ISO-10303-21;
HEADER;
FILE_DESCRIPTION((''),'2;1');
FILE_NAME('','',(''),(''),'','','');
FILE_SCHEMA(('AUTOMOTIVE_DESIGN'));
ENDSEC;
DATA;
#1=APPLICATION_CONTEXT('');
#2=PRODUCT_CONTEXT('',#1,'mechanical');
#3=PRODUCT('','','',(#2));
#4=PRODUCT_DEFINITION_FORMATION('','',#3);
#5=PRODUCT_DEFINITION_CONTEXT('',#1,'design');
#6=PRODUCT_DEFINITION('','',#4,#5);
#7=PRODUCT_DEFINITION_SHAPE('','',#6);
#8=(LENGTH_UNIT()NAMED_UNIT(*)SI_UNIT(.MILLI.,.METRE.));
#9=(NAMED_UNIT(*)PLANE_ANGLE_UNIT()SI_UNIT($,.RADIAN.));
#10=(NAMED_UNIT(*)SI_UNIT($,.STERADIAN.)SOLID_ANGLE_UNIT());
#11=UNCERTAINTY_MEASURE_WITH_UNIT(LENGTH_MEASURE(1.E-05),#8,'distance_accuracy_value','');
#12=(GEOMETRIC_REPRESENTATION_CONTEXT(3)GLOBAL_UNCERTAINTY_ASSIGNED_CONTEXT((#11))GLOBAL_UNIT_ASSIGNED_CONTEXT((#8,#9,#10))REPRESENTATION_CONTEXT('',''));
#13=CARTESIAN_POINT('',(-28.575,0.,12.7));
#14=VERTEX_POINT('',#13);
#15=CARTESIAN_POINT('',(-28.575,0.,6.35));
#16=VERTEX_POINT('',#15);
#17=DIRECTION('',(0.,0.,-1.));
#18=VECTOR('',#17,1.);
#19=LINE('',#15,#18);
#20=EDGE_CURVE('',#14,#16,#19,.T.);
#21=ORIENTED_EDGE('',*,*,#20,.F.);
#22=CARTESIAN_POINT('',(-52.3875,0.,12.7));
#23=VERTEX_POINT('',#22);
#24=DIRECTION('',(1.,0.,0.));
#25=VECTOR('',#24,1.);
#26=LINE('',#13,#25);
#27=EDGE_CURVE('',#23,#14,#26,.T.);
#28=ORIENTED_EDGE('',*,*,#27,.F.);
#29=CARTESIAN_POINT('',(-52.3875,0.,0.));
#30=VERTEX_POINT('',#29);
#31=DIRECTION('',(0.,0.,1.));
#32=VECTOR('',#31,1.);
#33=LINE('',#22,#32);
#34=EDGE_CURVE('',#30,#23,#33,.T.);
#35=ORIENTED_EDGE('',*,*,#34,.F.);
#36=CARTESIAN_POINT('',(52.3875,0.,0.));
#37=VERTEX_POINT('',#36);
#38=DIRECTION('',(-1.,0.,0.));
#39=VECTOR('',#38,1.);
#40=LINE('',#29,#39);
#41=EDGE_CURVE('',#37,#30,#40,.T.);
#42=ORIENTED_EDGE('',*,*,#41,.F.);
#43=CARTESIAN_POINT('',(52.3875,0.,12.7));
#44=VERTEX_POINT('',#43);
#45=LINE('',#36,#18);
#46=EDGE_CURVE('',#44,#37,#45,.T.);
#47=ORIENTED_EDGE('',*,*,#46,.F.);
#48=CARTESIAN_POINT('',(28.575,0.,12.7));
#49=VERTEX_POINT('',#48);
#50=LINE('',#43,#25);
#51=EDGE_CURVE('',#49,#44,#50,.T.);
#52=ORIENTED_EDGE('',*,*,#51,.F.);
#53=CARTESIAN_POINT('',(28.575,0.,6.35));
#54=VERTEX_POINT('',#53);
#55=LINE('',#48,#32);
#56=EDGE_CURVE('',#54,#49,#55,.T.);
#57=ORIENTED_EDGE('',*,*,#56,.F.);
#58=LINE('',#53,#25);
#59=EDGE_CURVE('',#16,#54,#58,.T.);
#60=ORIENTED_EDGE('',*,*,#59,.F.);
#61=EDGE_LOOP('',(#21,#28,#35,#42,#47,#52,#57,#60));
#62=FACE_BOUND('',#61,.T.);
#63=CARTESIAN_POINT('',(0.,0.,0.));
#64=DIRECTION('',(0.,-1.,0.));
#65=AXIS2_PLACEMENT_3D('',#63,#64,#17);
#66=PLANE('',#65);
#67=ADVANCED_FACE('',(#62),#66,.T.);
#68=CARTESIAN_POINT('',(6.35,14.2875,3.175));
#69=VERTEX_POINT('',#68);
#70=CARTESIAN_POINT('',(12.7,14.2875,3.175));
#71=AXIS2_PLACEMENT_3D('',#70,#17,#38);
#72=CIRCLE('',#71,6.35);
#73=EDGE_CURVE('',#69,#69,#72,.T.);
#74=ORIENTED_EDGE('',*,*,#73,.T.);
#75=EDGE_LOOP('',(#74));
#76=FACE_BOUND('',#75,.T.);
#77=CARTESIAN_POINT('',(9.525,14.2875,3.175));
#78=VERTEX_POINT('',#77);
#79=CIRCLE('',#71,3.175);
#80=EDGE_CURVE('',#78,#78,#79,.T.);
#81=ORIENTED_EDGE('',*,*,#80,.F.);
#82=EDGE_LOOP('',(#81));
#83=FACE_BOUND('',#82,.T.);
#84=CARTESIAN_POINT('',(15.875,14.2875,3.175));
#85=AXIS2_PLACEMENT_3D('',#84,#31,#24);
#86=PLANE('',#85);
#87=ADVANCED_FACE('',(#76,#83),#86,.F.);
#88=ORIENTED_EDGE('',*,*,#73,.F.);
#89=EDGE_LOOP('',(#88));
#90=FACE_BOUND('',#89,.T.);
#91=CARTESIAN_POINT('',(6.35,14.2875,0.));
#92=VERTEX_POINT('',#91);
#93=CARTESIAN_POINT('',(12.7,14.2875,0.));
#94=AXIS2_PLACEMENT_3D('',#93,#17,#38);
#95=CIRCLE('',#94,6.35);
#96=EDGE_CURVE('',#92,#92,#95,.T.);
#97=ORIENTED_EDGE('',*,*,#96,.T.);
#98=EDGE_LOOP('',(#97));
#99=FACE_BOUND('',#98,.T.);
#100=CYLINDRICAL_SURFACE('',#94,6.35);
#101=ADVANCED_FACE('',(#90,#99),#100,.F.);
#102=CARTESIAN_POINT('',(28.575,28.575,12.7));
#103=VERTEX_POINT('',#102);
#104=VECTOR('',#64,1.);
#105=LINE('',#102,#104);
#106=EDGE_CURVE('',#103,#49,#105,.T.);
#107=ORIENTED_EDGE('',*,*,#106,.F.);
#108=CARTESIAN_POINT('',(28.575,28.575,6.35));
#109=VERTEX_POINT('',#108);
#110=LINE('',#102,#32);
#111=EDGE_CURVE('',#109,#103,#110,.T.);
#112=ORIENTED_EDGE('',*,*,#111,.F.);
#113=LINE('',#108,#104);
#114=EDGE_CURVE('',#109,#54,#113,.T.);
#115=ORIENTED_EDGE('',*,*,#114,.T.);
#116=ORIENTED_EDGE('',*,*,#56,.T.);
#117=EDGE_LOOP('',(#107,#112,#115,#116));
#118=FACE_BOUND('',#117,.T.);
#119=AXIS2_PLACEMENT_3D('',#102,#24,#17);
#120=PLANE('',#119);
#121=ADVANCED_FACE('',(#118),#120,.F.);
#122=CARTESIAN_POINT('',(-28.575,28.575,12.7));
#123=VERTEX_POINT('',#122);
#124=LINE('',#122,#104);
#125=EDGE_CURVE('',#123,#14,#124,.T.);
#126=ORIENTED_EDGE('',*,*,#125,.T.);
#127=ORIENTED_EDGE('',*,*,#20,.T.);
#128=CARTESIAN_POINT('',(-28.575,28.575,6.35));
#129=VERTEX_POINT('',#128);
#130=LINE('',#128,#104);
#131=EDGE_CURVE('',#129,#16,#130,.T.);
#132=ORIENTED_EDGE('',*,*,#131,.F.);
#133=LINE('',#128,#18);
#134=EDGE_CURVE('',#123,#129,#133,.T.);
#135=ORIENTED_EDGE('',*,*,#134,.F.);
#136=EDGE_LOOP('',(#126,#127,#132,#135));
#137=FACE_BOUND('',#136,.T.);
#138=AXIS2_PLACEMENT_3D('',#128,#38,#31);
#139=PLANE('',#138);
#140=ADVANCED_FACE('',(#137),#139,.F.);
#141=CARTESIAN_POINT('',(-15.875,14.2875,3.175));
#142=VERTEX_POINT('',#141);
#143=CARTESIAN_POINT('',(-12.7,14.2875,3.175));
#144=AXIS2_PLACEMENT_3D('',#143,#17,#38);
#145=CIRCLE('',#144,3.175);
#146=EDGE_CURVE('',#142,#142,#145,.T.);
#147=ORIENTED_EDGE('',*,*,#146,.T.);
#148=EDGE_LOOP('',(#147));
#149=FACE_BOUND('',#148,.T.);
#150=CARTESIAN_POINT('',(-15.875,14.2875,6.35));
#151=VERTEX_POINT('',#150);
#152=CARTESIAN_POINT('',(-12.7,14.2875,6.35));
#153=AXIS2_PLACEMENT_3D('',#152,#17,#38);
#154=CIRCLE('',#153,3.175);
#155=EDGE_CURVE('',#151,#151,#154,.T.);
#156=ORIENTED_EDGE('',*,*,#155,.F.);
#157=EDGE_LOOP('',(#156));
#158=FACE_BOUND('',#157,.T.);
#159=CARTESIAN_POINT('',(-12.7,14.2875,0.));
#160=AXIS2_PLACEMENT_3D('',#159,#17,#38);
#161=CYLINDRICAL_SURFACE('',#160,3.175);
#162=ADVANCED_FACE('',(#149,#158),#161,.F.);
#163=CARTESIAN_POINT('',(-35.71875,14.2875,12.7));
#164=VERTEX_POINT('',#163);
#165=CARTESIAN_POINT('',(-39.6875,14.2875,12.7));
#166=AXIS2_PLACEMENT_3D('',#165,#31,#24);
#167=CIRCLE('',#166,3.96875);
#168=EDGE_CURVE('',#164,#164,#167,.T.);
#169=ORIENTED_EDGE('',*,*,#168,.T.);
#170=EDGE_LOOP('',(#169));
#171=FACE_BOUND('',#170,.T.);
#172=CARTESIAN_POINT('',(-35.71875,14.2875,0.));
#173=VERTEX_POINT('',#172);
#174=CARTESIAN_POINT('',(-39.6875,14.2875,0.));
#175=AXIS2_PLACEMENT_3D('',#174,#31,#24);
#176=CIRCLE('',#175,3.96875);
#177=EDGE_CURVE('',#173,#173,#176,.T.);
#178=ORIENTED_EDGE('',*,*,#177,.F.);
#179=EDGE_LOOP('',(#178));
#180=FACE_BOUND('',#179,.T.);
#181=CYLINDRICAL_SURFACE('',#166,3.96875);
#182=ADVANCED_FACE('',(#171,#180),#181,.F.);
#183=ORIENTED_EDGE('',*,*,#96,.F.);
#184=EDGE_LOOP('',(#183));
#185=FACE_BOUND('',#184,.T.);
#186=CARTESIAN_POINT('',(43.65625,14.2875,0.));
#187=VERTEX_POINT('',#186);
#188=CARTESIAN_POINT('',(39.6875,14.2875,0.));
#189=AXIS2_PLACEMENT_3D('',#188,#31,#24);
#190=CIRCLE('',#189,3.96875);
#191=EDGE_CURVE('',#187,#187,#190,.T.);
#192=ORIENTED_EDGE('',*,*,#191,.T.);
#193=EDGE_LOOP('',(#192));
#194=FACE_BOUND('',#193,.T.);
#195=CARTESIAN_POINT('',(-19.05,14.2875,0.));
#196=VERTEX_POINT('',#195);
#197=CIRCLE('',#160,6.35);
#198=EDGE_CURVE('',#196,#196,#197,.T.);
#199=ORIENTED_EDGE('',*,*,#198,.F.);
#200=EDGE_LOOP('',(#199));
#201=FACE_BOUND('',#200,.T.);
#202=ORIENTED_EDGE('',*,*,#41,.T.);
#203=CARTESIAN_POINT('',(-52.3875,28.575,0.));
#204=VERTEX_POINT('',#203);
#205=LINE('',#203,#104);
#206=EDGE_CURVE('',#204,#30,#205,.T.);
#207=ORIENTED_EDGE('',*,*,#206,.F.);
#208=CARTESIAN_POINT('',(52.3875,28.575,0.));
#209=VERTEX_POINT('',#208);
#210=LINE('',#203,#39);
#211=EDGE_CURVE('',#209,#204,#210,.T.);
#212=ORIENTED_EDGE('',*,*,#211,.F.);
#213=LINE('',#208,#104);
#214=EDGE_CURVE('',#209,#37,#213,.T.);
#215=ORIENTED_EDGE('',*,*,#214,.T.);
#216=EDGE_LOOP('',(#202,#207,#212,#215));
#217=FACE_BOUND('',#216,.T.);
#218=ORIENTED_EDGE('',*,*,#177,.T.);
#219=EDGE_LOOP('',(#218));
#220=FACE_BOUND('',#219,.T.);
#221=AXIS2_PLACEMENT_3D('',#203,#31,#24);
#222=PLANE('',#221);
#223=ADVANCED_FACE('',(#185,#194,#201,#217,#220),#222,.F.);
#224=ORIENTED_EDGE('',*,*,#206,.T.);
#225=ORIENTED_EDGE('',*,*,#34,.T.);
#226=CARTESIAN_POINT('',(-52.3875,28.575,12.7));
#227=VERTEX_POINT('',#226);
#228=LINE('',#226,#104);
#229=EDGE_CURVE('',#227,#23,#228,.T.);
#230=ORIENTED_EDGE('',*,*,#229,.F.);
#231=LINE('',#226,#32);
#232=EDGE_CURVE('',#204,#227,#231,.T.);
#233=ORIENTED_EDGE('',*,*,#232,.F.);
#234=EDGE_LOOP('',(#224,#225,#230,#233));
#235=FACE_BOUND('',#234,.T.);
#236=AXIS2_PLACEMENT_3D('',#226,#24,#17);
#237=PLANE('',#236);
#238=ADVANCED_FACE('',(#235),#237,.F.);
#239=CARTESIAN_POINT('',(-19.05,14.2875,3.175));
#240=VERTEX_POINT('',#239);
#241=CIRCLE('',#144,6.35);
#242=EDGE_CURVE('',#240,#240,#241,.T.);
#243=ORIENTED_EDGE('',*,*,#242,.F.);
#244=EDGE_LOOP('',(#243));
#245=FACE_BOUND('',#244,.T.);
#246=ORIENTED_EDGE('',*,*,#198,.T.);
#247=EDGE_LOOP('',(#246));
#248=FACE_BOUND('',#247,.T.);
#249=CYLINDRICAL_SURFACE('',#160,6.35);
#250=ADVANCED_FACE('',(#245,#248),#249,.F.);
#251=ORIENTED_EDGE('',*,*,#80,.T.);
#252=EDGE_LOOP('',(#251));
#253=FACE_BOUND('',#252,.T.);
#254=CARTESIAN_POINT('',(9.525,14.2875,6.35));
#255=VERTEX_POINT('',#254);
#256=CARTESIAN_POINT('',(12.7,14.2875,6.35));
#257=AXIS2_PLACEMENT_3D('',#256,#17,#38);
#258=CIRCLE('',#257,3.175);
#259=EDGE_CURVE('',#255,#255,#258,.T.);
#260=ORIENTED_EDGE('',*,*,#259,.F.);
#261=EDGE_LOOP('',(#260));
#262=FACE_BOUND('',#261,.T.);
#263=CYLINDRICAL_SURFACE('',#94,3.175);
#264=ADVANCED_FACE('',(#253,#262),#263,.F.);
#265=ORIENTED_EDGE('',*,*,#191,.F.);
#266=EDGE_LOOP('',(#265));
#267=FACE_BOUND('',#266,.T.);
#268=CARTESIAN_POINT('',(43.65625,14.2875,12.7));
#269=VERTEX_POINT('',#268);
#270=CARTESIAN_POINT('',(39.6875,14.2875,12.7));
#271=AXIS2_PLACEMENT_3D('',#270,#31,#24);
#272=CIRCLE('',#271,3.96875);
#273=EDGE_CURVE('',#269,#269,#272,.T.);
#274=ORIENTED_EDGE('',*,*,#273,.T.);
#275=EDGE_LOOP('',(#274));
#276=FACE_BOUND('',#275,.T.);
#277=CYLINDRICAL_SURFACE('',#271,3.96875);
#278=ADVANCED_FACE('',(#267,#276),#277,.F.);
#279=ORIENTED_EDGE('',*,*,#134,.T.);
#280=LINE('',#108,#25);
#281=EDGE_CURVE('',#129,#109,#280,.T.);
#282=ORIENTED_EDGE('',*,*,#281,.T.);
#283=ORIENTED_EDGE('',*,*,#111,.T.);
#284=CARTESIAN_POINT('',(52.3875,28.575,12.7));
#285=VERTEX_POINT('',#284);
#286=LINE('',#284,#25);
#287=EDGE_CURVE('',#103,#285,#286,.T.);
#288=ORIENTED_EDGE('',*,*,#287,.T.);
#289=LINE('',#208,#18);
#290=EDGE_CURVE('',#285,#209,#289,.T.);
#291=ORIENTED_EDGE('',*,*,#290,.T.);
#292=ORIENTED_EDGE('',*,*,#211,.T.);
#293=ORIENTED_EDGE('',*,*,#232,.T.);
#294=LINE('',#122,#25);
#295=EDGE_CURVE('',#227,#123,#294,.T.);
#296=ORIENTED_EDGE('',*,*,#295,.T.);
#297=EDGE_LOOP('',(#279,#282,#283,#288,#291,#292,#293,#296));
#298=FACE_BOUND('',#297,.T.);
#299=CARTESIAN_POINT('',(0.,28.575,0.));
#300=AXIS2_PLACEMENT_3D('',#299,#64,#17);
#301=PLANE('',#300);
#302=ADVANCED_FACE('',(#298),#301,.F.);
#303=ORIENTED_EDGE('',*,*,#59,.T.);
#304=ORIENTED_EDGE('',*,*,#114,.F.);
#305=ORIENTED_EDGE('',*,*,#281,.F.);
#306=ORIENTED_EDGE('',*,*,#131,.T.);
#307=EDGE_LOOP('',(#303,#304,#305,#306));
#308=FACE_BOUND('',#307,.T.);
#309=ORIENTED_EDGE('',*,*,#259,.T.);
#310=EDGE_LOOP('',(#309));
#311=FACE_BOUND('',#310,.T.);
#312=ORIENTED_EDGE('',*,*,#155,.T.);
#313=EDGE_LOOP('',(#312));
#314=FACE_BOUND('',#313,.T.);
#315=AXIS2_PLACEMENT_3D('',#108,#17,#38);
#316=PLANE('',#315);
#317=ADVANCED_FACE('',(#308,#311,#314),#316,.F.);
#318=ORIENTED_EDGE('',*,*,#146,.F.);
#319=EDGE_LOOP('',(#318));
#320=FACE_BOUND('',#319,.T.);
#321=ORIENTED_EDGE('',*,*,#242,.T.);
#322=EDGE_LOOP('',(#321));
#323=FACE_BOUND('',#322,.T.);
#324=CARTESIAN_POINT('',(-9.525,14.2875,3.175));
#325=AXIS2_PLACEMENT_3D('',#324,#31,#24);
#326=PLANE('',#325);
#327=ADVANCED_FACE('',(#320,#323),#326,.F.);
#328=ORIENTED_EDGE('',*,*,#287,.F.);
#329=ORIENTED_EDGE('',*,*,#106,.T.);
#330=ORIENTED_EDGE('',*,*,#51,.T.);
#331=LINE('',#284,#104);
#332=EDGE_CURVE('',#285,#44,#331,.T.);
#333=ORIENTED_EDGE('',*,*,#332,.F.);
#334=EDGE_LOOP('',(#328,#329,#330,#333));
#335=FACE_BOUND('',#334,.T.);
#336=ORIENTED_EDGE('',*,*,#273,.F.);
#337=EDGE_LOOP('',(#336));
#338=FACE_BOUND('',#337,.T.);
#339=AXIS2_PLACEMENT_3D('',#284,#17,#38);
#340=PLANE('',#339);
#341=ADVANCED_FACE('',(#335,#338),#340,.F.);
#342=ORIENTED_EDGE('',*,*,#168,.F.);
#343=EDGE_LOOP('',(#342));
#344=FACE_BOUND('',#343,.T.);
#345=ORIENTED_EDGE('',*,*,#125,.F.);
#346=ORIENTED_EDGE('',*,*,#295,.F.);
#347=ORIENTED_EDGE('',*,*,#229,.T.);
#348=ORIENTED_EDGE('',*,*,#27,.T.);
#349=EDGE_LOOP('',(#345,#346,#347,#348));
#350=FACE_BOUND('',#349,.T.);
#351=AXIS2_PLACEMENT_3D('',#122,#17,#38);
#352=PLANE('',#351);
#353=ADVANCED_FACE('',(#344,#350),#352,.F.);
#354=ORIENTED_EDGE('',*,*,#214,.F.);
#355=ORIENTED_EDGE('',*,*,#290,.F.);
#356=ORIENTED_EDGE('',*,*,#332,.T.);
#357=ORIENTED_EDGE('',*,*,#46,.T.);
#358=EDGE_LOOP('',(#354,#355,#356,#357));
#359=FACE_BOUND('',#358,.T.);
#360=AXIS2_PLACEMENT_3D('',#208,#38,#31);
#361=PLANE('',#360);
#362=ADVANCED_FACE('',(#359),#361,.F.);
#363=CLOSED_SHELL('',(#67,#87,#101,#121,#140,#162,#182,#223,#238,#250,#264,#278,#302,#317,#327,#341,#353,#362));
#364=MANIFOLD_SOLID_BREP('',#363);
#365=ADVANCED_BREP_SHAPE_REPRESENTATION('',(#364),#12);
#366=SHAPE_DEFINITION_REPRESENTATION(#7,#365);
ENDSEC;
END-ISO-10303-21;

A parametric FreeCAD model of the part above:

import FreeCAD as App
import Part
import Sketcher
Q = App.Units.Quantity


def add_polygon(sketch, points):
    """Adds a closed chain of lines whose ends are joined by coincident constraints."""
    first, n = sketch.GeometryCount, len(points)
    for a, b in zip(points, points[1:] + points[:1]):
        sketch.addGeometry(Part.LineSegment(App.Vector(*a, 0), App.Vector(*b, 0)), False)
    for i in range(n):
        sketch.addConstraint(Sketcher.Constraint("Coincident", first + i, 2, first + (i + 1) % n, 1))

doc = App.newDocument("Part")
params = doc.addObject("Spreadsheet::Sheet", "Params")
for row, (alias, value) in enumerate([
    ("sketch1_height", "0.5 in"),
    ("sketch1_width", "2.25 in"),
    ("sketch1_height2", "0.25 in"),
    ("sketch1_width2", "4.125 in"),
    ("pad1_length", "1.125 in"),
    ("sketch2_diameter", "0.25 in"),
    ("hole_diameter", "0.25 in"),
    ("hole_depth", "0.5 in"),
    ("hole_cbore_diameter", "0.5 in"),
    ("hole_cbore_depth", "0.125 in"),
    ("sketch3_diameter", "0.3125 in"),
    ("hole2_diameter", "0.3125 in"),
], start=1):
    params.set(f"A{row}", alias)
    params.set(f"B{row}", "=" + value)
    params.setAlias(f"B{row}", alias)

body = doc.addObject("PartDesign::Body", "Body")

# Sketch on XZ plane
sketch1 = body.newObject("Sketcher::SketchObject", "Sketch")
sketch1.AttachmentSupport = (doc.getObject("XZ_Plane"), [""])
sketch1.MapMode = "FlatFace"
add_polygon(sketch1, [(52.3875, 0), (-52.3875, 0), (-52.3875, 12.7), (-28.575, 12.7), (-28.575, 6.35), (28.575, 6.35), (28.575, 12.7), (52.3875, 12.7)])  # lines 0-7
sketch1.addConstraint([
    Sketcher.Constraint("Horizontal", 0),
    Sketcher.Constraint("Vertical", 1),
    Sketcher.Constraint("Horizontal", 2),
    Sketcher.Constraint("Vertical", 3),
    Sketcher.Constraint("Horizontal", 4),
    Sketcher.Constraint("Vertical", 5),
    Sketcher.Constraint("Horizontal", 6),
    Sketcher.Constraint("Vertical", 7),
    Sketcher.Constraint("Symmetric", 0, 2, 7, 2, -1, 1),
    Sketcher.Constraint("Symmetric", 2, 2, 5, 2, -2),
    Sketcher.Constraint("DistanceY", 1, 1, 1, 2, Q("0.5 in")),
    Sketcher.Constraint("DistanceX", 4, 1, 4, 2, Q("2.25 in")),
    Sketcher.Constraint("DistanceY", 3, 2, 3, 1, Q("0.25 in")),
    Sketcher.Constraint("DistanceX", 0, 2, 0, 1, Q("4.125 in")),
])
sketch1.setExpression("Constraints[18]", "Params.sketch1_height")
sketch1.setExpression("Constraints[19]", "Params.sketch1_width")
sketch1.setExpression("Constraints[20]", "Params.sketch1_height2")
sketch1.setExpression("Constraints[21]", "Params.sketch1_width2")
pad1 = body.newObject("PartDesign::Pad", "Pad")
pad1.Profile = sketch1
pad1.setExpression("Length", "Params.pad1_length")
pad1.Reversed = True

# Sketch on XY plane
sketch2 = body.newObject("Sketcher::SketchObject", "Sketch001")
sketch2.AttachmentSupport = (doc.getObject("XY_Plane"), [""])
sketch2.MapMode = "FlatFace"
sketch2.addGeometry([
    Part.Circle(App.Vector(12.7, 14.2875, 0), App.Vector(0, 0, 1), 3.175),
    Part.Circle(App.Vector(-12.7, 14.2875, 0), App.Vector(0, 0, 1), 3.175),
], False)
sketch2.addConstraint([
    Sketcher.Constraint("Equal", 0, 1),
    Sketcher.Constraint("Symmetric", 0, 3, 1, 3, -2),
    Sketcher.Constraint("Diameter", 0, Q("0.25 in")),
    Sketcher.Constraint("DistanceX", 1, 3, 0, 3, Q("1 in")),
    Sketcher.Constraint("DistanceY", -1, 1, 0, 3, Q("0.5625 in")),
])
sketch2.setExpression("Constraints[2]", "Params.sketch2_diameter")
doc.recompute()
hole = body.newObject("PartDesign::Hole", "Hole")
hole.Profile = sketch2
hole.ThreadType = "None"
hole.setExpression("Diameter", "Params.hole_diameter")
hole.DepthType = "Dimension"
hole.setExpression("Depth", "Params.hole_depth")
hole.DrillPoint = "Angled"
hole.DrillPointAngle = 118
hole.HoleCutType = "Counterbore"
hole.setExpression("HoleCutDiameter", "Params.hole_cbore_diameter")
hole.setExpression("HoleCutDepth", "Params.hole_cbore_depth")
hole.Reversed = True

# Sketch on XY plane
sketch3 = body.newObject("Sketcher::SketchObject", "Sketch002")
sketch3.AttachmentSupport = (doc.getObject("XY_Plane"), [""])
sketch3.MapMode = "FlatFace"
sketch3.AttachmentOffset = App.Placement(App.Vector(0, 0, 0.5 * 25.4), App.Rotation())
sketch3.addGeometry([
    Part.Circle(App.Vector(-39.6875, 14.2875, 0), App.Vector(0, 0, 1), 3.96875),
    Part.Circle(App.Vector(39.6875, 14.2875, 0), App.Vector(0, 0, 1), 3.96875),
], False)
sketch3.addConstraint([
    Sketcher.Constraint("Equal", 0, 1),
    Sketcher.Constraint("Symmetric", 0, 3, 1, 3, -2),
    Sketcher.Constraint("Diameter", 0, Q("0.3125 in")),
    Sketcher.Constraint("DistanceX", 0, 3, -1, 1, Q("1.5625 in")),
    Sketcher.Constraint("DistanceY", -1, 1, 0, 3, Q("0.5625 in")),
])
sketch3.setExpression("Constraints[2]", "Params.sketch3_diameter")
doc.recompute()
hole2 = body.newObject("PartDesign::Hole", "Hole001")
hole2.Profile = sketch3
hole2.ThreadType = "None"
hole2.setExpression("Diameter", "Params.hole2_diameter")
hole2.DepthType = "ThroughAll"

doc.recompute()
